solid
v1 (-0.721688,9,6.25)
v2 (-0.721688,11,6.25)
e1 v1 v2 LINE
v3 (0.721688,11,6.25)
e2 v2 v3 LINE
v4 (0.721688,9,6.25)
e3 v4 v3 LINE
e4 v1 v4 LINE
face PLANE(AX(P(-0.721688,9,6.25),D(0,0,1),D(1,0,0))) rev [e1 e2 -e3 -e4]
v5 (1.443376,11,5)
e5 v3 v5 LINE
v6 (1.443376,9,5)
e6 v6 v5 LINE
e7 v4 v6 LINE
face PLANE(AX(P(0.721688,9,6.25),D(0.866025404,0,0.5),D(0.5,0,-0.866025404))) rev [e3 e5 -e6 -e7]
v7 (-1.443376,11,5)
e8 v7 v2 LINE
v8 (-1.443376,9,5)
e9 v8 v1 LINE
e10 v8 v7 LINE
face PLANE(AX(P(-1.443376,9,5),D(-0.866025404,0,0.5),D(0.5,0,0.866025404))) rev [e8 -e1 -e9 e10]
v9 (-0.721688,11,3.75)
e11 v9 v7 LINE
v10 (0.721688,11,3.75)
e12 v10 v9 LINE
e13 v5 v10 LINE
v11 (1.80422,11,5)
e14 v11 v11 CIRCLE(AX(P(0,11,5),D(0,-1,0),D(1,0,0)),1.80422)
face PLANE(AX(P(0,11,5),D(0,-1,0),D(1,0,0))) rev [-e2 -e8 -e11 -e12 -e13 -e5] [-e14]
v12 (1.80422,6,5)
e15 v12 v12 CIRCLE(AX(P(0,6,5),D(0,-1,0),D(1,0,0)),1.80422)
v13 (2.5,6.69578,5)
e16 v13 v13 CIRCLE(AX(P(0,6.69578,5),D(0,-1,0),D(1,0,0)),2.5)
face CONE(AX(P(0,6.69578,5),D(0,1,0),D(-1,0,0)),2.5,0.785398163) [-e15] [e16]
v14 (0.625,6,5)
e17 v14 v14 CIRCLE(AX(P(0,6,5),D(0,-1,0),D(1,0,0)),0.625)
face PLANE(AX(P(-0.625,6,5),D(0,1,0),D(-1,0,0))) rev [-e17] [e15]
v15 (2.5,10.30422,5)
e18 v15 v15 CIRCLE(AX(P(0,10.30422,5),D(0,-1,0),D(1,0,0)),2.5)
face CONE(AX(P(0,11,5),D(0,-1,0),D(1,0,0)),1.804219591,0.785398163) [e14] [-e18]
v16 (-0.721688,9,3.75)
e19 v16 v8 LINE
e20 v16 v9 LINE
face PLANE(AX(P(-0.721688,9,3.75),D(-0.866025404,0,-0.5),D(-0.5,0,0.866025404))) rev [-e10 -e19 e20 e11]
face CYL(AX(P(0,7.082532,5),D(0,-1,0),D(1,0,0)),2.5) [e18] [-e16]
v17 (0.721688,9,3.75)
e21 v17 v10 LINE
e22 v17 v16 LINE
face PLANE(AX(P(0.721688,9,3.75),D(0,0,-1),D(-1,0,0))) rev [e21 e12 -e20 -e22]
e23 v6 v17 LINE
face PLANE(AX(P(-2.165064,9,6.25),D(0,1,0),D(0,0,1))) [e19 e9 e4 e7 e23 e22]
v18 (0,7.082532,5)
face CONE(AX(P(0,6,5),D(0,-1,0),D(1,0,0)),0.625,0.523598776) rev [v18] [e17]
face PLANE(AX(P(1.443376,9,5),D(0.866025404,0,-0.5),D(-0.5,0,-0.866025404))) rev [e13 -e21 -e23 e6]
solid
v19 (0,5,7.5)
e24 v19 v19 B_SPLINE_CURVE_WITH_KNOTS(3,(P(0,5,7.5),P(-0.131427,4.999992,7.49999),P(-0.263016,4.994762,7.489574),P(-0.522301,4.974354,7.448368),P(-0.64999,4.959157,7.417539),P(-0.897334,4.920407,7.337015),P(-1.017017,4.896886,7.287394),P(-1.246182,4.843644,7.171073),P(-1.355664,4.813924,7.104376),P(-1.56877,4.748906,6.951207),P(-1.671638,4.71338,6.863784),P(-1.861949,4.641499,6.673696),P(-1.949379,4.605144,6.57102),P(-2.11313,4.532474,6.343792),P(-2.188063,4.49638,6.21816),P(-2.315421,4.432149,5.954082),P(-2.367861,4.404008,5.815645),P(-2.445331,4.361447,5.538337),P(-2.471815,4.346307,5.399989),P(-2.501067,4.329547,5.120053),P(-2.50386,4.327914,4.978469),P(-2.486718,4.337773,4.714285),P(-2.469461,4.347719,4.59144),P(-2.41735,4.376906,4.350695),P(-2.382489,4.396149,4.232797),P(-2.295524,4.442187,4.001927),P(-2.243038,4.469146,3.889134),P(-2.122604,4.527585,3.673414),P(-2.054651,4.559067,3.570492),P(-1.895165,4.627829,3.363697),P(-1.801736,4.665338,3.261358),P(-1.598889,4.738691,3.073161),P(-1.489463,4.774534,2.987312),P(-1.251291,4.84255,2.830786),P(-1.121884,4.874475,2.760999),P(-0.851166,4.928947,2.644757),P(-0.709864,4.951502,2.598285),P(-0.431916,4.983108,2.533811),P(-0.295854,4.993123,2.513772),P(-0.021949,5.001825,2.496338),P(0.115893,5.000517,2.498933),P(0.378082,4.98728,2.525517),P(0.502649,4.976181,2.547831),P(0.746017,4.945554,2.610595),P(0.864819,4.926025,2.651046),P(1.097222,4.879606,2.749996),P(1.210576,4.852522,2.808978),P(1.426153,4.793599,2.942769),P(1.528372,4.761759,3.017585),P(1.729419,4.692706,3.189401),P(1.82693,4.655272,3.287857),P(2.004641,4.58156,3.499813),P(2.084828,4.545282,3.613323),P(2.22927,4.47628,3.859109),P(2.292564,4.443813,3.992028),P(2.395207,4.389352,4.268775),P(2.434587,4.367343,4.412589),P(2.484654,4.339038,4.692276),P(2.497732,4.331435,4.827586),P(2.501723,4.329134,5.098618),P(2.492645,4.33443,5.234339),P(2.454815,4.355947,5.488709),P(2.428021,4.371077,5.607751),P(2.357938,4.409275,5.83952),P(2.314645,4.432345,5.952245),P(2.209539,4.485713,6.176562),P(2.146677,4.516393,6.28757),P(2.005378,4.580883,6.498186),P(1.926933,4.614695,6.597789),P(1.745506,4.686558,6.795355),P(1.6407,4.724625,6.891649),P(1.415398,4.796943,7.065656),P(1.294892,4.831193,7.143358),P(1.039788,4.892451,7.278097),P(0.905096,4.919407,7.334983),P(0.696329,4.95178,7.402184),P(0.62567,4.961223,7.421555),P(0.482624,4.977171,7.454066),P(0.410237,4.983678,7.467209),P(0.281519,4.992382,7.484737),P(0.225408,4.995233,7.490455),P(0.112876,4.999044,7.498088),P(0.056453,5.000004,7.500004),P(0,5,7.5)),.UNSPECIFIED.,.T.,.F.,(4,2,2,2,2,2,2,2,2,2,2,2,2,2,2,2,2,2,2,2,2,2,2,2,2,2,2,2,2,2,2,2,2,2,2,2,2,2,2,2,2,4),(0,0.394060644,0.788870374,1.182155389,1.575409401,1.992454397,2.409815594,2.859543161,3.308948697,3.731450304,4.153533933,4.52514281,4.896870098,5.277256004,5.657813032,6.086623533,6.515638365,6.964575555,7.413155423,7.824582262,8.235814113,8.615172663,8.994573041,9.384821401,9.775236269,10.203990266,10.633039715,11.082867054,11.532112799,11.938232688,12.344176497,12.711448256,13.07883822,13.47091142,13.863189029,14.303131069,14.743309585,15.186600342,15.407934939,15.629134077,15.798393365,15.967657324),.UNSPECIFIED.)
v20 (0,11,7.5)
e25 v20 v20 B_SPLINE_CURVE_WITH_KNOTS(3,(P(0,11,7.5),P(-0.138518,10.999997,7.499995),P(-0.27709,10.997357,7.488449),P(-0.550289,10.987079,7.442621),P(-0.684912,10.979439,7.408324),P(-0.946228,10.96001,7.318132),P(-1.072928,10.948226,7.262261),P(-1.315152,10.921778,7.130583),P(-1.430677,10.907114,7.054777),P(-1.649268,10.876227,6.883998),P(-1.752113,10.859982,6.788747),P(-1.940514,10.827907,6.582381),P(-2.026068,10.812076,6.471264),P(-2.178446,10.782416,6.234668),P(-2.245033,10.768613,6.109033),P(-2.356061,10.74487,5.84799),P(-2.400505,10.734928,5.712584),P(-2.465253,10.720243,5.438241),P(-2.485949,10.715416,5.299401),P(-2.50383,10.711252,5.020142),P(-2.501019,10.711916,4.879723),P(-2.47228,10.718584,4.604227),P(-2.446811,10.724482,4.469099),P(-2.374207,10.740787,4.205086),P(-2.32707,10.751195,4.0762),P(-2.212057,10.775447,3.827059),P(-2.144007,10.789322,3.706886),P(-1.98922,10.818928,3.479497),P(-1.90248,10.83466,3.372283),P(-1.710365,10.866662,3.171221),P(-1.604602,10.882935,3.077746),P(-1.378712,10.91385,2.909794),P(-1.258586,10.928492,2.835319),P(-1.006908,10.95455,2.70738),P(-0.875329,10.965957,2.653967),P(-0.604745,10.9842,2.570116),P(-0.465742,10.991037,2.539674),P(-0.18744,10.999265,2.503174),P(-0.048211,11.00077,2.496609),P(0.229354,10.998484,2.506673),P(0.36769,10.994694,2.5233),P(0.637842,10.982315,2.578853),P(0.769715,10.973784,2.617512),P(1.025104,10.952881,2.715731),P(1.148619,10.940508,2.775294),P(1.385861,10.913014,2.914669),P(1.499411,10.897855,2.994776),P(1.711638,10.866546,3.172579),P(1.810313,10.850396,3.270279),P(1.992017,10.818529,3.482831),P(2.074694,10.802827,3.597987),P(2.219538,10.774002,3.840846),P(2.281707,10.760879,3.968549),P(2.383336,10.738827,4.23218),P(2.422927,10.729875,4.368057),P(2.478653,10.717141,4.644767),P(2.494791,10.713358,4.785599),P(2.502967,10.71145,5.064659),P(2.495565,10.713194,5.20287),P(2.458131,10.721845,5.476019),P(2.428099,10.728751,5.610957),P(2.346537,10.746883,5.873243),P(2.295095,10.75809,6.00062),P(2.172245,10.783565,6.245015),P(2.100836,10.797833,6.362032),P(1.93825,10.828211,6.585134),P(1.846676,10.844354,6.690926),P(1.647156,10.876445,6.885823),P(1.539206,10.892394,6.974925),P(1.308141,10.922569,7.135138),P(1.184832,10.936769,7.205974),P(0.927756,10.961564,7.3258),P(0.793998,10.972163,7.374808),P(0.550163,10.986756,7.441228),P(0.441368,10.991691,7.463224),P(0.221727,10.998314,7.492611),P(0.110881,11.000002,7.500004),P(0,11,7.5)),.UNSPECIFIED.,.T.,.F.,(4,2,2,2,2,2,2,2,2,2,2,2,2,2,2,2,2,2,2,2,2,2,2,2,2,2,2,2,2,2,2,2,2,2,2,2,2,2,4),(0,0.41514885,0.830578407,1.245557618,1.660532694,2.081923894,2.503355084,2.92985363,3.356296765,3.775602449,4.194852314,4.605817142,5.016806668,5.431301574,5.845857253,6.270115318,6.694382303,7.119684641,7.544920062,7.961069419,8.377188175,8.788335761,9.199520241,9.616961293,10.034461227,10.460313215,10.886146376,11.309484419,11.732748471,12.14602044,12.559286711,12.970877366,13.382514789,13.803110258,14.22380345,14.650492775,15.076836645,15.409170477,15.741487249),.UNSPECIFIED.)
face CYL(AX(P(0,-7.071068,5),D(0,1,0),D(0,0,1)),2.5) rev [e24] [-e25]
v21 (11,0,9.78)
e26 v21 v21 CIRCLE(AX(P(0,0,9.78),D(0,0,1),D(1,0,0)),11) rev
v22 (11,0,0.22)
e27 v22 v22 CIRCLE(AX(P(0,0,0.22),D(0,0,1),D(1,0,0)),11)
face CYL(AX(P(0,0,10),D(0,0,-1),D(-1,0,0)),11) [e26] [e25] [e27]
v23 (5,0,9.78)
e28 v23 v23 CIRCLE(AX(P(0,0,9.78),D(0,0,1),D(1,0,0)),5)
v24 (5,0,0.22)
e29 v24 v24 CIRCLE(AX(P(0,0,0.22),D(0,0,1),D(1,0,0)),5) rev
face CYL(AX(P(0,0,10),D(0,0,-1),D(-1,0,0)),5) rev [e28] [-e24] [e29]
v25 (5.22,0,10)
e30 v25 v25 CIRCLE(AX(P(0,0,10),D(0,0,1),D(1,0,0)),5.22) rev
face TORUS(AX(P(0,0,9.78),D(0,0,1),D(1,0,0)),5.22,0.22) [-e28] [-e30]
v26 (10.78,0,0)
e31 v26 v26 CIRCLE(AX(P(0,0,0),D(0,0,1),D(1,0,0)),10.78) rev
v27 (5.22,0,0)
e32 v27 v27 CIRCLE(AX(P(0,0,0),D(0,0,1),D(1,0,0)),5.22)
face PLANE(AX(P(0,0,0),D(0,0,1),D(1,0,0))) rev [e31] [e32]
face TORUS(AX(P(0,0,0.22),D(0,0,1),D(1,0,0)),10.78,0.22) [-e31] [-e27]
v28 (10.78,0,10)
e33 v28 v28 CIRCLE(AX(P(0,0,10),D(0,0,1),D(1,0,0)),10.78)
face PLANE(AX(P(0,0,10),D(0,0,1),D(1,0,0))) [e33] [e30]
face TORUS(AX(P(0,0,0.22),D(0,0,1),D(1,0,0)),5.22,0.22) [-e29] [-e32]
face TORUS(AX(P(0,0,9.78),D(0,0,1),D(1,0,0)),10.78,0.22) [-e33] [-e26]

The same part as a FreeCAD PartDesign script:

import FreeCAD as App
import Part
import Sketcher
Q = App.Units.Quantity


def edges_at(feature, points):
    """Names of the edges that pass closest to the given points."""
    edges = feature.Shape.Edges
    near = lambda p: min(range(len(edges)), key=lambda i: edges[i].distToShape(Part.Vertex(*p))[0])
    return sorted({f"Edge{near(p) + 1}" for p in points})


def add_polygon(sketch, points):
    """Adds a closed chain of lines whose ends are joined by coincident constraints."""
    first, n = sketch.GeometryCount, len(points)
    for a, b in zip(points, points[1:] + points[:1]):
        sketch.addGeometry(Part.LineSegment(App.Vector(*a, 0), App.Vector(*b, 0)), False)
    for i in range(n):
        sketch.addConstraint(Sketcher.Constraint("Coincident", first + i, 2, first + (i + 1) % n, 1))

doc = App.newDocument("Part")
params = doc.addObject("Spreadsheet::Sheet", "Params")
for row, (alias, value) in enumerate([
    ("sketch1_diameter", "22 mm"),
    ("sketch1_diameter2", "10 mm"),
    ("pad1_length", "10 mm"),
    ("sketch2_diameter", "5 mm"),
    ("fillet_radius", "0.22 mm"),
    ("sketch3_length", "1.25 mm"),
    ("revolution_angle", "360 deg"),
    ("pocket2_length", "2 mm"),
], start=1):
    params.set(f"A{row}", alias)
    params.set(f"B{row}", "=" + value)
    params.setAlias(f"B{row}", alias)

body = doc.addObject("PartDesign::Body", "Body")

# Sketch on XY plane
sketch1 = body.newObject("Sketcher::SketchObject", "Sketch")
sketch1.AttachmentSupport = (doc.getObject("XY_Plane"), [""])
sketch1.MapMode = "FlatFace"
sketch1.addGeometry(Part.Circle(App.Vector(0, 0, 0), App.Vector(0, 0, 1), 11), False)
sketch1.addGeometry(Part.Circle(App.Vector(0, 0, 0), App.Vector(0, 0, 1), 5), False)
sketch1.addConstraint(Sketcher.Constraint("Coincident", 0, 3, -1, 1))
sketch1.addConstraint(Sketcher.Constraint("Coincident", 1, 3, -1, 1))
sketch1.addConstraint(Sketcher.Constraint("Diameter", 0, Q("22 mm")))
sketch1.addConstraint(Sketcher.Constraint("Diameter", 1, Q("10 mm")))
sketch1.setExpression("Constraints[2]", "Params.sketch1_diameter")
sketch1.setExpression("Constraints[3]", "Params.sketch1_diameter2")
pad1 = body.newObject("PartDesign::Pad", "Pad")
pad1.Profile = sketch1
pad1.setExpression("Length", "Params.pad1_length")

# Sketch on XZ plane
sketch2 = body.newObject("Sketcher::SketchObject", "Sketch001")
sketch2.AttachmentSupport = (doc.getObject("XZ_Plane"), [""])
sketch2.MapMode = "FlatFace"
sketch2.AttachmentOffset = App.Placement(App.Vector(0, 0, -11), App.Rotation())
sketch2.addGeometry(Part.Circle(App.Vector(0, 5, 0), App.Vector(0, 0, 1), 2.5), False)
sketch2.addConstraint(Sketcher.Constraint("PointOnObject", 0, 3, -2))
sketch2.addConstraint(Sketcher.Constraint("Diameter", 0, Q("5 mm")))
sketch2.addConstraint(Sketcher.Constraint("DistanceY", -1, 1, 0, 3, Q("5 mm")))
sketch2.setExpression("Constraints[1]", "Params.sketch2_diameter")
pocket1 = body.newObject("PartDesign::Pocket", "Pocket")
pocket1.Profile = sketch2
pocket1.Type = "UpToFirst"
pocket1.Reversed = True
doc.recompute()

fillet = body.newObject("PartDesign::Fillet", "Fillet")
fillet.Base = (pocket1, edges_at(pocket1, [
    (-11, 0, 0),
    (-11, 0, 10),
    (-5, 0, 0),
    (-5, 0, 10),
]))
fillet.setExpression("Radius", "Params.fillet_radius")
body2 = doc.addObject("PartDesign::Body", "Body001")

# Sketch on XY plane
sketch3 = body2.newObject("Sketcher::SketchObject", "Sketch002")
sketch3.AttachmentSupport = (doc.getObject("XY_Plane001"), [""])
sketch3.MapMode = "FlatFace"
sketch3.AttachmentOffset = App.Placement(App.Vector(0, 0, 5), App.Rotation())
add_polygon(sketch3, [(-1.8, 11), (-2.5, 10.3), (-2.5, 6.7), (-1.8, 6), (-0.6, 6), (0, 7.1), (0, 11)])  # lines 0-6
sketch3.addConstraint(Sketcher.Constraint("Vertical", 1))
sketch3.addConstraint(Sketcher.Constraint("Horizontal", 3))
sketch3.addConstraint(Sketcher.Constraint("Vertical", 5))
sketch3.addConstraint(Sketcher.Constraint("Horizontal", 6))
sketch3.addConstraint(Sketcher.Constraint("PointOnObject", 4, 2, -2))
sketch3.addConstraint(Sketcher.Constraint("Perpendicular", 0, 2))
sketch3.addConstraint(Sketcher.Constraint("Vertical", 2, 2, 6, 2))
sketch3.addConstraint(Sketcher.Constraint("Equal", 0, 2))
sketch3.addConstraint(Sketcher.Constraint("Angle", 4, Q("60 deg")))
sketch3.addConstraint(Sketcher.Constraint("DistanceY", -1, 1, 2, 2, Q("6 mm")))
sketch3.addConstraint(Sketcher.Constraint("DistanceY", -1, 1, 5, 2, Q("11 mm")))
sketch3.addConstraint(Sketcher.Constraint("DistanceX", 0, 2, -1, 1, Q("2.5 mm")))
sketch3.addConstraint(Sketcher.Constraint("Distance", 4, Q("1.25 mm")))
sketch3.addConstraint(Sketcher.Constraint("DistanceX", 3, 1, 3, 2, Q("1.17922 mm")))
sketch3.setExpression("Constraints[19]", "Params.sketch3_length")
revolution = body2.newObject("PartDesign::Revolution", "Revolution")
revolution.Profile = sketch3
revolution.ReferenceAxis = (sketch3, ["V_Axis"])
revolution.setExpression("Angle", "Params.revolution_angle")

# Sketch on XZ plane
sketch4 = body2.newObject("Sketcher::SketchObject", "Sketch003")
sketch4.AttachmentSupport = (doc.getObject("XZ_Plane001"), [""])
sketch4.MapMode = "FlatFace"
sketch4.AttachmentOffset = App.Placement(App.Vector(0, 0, -11), App.Rotation())
add_polygon(sketch4, [(-1.4, 5), (-0.7, 6.2), (0.7, 6.2), (1.4, 5), (0.7, 3.8), (-0.7, 3.8)])  # lines 0-5
sketch4.addConstraint(Sketcher.Constraint("Horizontal", 1))
sketch4.addConstraint(Sketcher.Constraint("Horizontal", 4))
sketch4.addConstraint(Sketcher.Constraint("Symmetric", 2, 2, 5, 2, -2))
sketch4.addConstraint(Sketcher.Constraint("Parallel", 0, 3))
sketch4.addConstraint(Sketcher.Constraint("Parallel", 2, 5))
sketch4.addConstraint(Sketcher.Constraint("Vertical", 1, 2, 3, 2))
sketch4.addConstraint(Sketcher.Constraint("Vertical", 0, 2, 4, 2))
sketch4.addConstraint(Sketcher.Constraint("Angle", 0, Q("60 deg")))
sketch4.addConstraint(Sketcher.Constraint("DistanceY", -1, 1, 2, 2, Q("5 mm")))
sketch4.addConstraint(Sketcher.Constraint("DistanceY", 3, 2, 1, 2, Q("2.5 mm")))
sketch4.addConstraint(Sketcher.Constraint("DistanceX", 1, 1, 1, 2, Q("1.443376 mm")))
pocket2 = body2.newObject("PartDesign::Pocket", "Pocket001")
pocket2.Profile = sketch4
pocket2.setExpression("Length", "Params.pocket2_length")
pocket2.Reversed = True

doc.recompute()
